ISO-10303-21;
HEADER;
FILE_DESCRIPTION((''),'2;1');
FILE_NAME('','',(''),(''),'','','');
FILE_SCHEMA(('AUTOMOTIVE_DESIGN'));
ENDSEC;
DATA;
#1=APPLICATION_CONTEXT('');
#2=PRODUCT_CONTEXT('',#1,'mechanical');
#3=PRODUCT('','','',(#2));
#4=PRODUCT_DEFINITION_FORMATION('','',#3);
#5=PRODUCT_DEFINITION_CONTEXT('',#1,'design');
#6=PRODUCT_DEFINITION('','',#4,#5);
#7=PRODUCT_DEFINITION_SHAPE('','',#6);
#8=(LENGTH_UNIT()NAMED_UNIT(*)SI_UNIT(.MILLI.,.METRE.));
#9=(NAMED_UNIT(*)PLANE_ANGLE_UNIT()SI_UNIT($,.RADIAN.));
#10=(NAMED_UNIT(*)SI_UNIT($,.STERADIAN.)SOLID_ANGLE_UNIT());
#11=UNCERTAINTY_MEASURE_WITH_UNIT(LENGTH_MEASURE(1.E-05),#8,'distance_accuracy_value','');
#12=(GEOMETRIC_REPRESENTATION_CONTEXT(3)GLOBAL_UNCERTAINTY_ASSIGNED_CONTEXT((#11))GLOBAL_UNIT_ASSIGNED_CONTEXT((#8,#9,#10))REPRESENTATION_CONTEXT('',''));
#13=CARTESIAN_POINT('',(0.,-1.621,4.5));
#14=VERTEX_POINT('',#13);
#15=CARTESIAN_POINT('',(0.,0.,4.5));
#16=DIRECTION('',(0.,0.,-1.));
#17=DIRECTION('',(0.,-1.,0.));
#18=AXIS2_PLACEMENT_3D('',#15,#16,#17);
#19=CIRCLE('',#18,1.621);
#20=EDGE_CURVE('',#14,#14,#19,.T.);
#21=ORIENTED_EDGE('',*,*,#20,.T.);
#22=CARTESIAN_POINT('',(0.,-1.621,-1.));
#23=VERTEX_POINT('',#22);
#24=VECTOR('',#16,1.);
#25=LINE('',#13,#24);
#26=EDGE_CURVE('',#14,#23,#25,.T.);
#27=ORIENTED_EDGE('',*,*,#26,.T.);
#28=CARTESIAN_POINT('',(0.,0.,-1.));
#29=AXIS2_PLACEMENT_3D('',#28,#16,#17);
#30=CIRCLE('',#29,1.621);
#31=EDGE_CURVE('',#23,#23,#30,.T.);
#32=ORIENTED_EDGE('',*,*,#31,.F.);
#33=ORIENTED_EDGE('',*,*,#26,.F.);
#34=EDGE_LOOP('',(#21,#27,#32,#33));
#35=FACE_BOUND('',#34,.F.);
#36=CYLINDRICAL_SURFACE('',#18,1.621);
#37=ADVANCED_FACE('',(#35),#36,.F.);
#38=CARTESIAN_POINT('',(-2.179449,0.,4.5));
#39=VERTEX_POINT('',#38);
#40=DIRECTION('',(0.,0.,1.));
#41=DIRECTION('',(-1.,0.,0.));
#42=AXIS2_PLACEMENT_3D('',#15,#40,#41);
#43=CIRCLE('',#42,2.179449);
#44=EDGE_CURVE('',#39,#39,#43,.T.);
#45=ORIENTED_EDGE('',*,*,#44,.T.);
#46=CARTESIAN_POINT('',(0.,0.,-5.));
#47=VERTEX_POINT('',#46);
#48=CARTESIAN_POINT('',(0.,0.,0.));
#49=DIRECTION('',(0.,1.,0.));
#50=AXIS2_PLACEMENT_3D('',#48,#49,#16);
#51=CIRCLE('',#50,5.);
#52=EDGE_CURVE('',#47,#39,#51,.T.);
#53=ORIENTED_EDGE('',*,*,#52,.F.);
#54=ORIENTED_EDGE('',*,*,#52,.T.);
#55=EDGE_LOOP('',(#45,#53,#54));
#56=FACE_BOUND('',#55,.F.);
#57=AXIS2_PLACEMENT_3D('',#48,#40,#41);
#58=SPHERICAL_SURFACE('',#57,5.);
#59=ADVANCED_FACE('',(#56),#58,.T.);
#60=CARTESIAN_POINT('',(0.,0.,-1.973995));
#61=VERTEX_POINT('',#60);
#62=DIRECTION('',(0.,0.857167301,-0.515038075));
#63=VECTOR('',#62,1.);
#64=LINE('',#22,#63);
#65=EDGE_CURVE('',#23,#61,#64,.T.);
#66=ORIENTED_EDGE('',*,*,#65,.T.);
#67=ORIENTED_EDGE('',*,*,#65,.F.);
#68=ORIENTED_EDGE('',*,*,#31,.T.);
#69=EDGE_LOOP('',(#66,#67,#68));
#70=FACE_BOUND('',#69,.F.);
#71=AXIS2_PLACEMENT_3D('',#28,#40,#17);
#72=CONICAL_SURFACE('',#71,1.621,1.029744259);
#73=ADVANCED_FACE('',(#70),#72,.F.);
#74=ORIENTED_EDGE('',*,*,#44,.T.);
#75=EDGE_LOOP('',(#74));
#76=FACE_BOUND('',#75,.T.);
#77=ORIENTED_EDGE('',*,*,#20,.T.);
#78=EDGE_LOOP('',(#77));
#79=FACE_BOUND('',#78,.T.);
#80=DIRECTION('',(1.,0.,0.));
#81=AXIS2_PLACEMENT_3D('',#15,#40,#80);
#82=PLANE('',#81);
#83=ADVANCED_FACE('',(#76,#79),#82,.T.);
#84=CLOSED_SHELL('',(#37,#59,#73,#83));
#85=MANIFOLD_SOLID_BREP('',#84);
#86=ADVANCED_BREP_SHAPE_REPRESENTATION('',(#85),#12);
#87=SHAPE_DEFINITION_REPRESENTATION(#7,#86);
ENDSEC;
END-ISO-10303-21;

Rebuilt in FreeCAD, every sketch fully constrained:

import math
import FreeCAD as App
import Part
import Sketcher

doc = App.newDocument("Part")
body = doc.addObject("PartDesign::Body", "Body")

sketch1 = body.newObject("Sketcher::SketchObject", "Sketch")
sketch1.AttachmentSupport = (doc.getObject("XZ_Plane"), [""])
sketch1.MapMode = "FlatFace"
sketch1.addGeometry([
    Part.LineSegment(App.Vector(0, 5, 0), App.Vector(0, -5, 0)),
    Part.ArcOfCircle(Part.Circle(App.Vector(0, 0, 0), App.Vector(0, 0, 1), 5), math.radians(90), math.radians(270)),
], False)
sketch1.addConstraint([
    Sketcher.Constraint("Coincident", 0, 1, 1, 1),
    Sketcher.Constraint("Coincident", 1, 2, 0, 2),
    Sketcher.Constraint("Vertical", 0),
    Sketcher.Constraint("Coincident", 1, 3, -1, 1),
    Sketcher.Constraint("PointOnObject", 0, 1, -2),
    Sketcher.Constraint("Radius", 1, 5.0),
])
revolution = body.newObject("PartDesign::Revolution", "Revolution")
revolution.Profile = sketch1
revolution.ReferenceAxis = (sketch1, ["V_Axis"])
revolution.Angle = 360

sketch2 = body.newObject("Sketcher::SketchObject", "Sketch001")
sketch2.AttachmentSupport = (doc.getObject("XY_Plane"), [""])
sketch2.MapMode = "FlatFace"
sketch2.AttachmentOffset = App.Placement(App.Vector(0, 0, 5), App.Rotation())
sketch2.addGeometry(Part.Circle(App.Vector(0, 0, 0), App.Vector(0, 0, 1), 2.5), False)
sketch2.addConstraint([
    Sketcher.Constraint("Coincident", 0, 3, -1, 1),
    Sketcher.Constraint("Diameter", 0, 5.0),
])
pocket1 = body.newObject("PartDesign::Pocket", "Pocket")
pocket1.Profile = sketch2
pocket1.Length = 0.5

sketch3 = body.newObject("Sketcher::SketchObject", "Sketch002")
sketch3.AttachmentSupport = (doc.getObject("XY_Plane"), [""])
sketch3.MapMode = "FlatFace"
sketch3.AttachmentOffset = App.Placement(App.Vector(0, 0, 4.5), App.Rotation())
sketch3.addGeometry(Part.Circle(App.Vector(0, 0, 0), App.Vector(0, 0, 1), 1.6), False)
sketch3.addConstraint([
    Sketcher.Constraint("Coincident", 0, 3, -1, 1),
    Sketcher.Constraint("Diameter", 0, 3.242),
])
doc.recompute()
hole = body.newObject("PartDesign::Hole", "Hole")
hole.Profile = sketch3
hole.ThreadType = "None"
hole.Diameter = 3.242
hole.DepthType = "Dimension"
hole.Depth = 5.5
hole.DrillPoint = "Angled"
hole.DrillPointAngle = 118

doc.recompute()
